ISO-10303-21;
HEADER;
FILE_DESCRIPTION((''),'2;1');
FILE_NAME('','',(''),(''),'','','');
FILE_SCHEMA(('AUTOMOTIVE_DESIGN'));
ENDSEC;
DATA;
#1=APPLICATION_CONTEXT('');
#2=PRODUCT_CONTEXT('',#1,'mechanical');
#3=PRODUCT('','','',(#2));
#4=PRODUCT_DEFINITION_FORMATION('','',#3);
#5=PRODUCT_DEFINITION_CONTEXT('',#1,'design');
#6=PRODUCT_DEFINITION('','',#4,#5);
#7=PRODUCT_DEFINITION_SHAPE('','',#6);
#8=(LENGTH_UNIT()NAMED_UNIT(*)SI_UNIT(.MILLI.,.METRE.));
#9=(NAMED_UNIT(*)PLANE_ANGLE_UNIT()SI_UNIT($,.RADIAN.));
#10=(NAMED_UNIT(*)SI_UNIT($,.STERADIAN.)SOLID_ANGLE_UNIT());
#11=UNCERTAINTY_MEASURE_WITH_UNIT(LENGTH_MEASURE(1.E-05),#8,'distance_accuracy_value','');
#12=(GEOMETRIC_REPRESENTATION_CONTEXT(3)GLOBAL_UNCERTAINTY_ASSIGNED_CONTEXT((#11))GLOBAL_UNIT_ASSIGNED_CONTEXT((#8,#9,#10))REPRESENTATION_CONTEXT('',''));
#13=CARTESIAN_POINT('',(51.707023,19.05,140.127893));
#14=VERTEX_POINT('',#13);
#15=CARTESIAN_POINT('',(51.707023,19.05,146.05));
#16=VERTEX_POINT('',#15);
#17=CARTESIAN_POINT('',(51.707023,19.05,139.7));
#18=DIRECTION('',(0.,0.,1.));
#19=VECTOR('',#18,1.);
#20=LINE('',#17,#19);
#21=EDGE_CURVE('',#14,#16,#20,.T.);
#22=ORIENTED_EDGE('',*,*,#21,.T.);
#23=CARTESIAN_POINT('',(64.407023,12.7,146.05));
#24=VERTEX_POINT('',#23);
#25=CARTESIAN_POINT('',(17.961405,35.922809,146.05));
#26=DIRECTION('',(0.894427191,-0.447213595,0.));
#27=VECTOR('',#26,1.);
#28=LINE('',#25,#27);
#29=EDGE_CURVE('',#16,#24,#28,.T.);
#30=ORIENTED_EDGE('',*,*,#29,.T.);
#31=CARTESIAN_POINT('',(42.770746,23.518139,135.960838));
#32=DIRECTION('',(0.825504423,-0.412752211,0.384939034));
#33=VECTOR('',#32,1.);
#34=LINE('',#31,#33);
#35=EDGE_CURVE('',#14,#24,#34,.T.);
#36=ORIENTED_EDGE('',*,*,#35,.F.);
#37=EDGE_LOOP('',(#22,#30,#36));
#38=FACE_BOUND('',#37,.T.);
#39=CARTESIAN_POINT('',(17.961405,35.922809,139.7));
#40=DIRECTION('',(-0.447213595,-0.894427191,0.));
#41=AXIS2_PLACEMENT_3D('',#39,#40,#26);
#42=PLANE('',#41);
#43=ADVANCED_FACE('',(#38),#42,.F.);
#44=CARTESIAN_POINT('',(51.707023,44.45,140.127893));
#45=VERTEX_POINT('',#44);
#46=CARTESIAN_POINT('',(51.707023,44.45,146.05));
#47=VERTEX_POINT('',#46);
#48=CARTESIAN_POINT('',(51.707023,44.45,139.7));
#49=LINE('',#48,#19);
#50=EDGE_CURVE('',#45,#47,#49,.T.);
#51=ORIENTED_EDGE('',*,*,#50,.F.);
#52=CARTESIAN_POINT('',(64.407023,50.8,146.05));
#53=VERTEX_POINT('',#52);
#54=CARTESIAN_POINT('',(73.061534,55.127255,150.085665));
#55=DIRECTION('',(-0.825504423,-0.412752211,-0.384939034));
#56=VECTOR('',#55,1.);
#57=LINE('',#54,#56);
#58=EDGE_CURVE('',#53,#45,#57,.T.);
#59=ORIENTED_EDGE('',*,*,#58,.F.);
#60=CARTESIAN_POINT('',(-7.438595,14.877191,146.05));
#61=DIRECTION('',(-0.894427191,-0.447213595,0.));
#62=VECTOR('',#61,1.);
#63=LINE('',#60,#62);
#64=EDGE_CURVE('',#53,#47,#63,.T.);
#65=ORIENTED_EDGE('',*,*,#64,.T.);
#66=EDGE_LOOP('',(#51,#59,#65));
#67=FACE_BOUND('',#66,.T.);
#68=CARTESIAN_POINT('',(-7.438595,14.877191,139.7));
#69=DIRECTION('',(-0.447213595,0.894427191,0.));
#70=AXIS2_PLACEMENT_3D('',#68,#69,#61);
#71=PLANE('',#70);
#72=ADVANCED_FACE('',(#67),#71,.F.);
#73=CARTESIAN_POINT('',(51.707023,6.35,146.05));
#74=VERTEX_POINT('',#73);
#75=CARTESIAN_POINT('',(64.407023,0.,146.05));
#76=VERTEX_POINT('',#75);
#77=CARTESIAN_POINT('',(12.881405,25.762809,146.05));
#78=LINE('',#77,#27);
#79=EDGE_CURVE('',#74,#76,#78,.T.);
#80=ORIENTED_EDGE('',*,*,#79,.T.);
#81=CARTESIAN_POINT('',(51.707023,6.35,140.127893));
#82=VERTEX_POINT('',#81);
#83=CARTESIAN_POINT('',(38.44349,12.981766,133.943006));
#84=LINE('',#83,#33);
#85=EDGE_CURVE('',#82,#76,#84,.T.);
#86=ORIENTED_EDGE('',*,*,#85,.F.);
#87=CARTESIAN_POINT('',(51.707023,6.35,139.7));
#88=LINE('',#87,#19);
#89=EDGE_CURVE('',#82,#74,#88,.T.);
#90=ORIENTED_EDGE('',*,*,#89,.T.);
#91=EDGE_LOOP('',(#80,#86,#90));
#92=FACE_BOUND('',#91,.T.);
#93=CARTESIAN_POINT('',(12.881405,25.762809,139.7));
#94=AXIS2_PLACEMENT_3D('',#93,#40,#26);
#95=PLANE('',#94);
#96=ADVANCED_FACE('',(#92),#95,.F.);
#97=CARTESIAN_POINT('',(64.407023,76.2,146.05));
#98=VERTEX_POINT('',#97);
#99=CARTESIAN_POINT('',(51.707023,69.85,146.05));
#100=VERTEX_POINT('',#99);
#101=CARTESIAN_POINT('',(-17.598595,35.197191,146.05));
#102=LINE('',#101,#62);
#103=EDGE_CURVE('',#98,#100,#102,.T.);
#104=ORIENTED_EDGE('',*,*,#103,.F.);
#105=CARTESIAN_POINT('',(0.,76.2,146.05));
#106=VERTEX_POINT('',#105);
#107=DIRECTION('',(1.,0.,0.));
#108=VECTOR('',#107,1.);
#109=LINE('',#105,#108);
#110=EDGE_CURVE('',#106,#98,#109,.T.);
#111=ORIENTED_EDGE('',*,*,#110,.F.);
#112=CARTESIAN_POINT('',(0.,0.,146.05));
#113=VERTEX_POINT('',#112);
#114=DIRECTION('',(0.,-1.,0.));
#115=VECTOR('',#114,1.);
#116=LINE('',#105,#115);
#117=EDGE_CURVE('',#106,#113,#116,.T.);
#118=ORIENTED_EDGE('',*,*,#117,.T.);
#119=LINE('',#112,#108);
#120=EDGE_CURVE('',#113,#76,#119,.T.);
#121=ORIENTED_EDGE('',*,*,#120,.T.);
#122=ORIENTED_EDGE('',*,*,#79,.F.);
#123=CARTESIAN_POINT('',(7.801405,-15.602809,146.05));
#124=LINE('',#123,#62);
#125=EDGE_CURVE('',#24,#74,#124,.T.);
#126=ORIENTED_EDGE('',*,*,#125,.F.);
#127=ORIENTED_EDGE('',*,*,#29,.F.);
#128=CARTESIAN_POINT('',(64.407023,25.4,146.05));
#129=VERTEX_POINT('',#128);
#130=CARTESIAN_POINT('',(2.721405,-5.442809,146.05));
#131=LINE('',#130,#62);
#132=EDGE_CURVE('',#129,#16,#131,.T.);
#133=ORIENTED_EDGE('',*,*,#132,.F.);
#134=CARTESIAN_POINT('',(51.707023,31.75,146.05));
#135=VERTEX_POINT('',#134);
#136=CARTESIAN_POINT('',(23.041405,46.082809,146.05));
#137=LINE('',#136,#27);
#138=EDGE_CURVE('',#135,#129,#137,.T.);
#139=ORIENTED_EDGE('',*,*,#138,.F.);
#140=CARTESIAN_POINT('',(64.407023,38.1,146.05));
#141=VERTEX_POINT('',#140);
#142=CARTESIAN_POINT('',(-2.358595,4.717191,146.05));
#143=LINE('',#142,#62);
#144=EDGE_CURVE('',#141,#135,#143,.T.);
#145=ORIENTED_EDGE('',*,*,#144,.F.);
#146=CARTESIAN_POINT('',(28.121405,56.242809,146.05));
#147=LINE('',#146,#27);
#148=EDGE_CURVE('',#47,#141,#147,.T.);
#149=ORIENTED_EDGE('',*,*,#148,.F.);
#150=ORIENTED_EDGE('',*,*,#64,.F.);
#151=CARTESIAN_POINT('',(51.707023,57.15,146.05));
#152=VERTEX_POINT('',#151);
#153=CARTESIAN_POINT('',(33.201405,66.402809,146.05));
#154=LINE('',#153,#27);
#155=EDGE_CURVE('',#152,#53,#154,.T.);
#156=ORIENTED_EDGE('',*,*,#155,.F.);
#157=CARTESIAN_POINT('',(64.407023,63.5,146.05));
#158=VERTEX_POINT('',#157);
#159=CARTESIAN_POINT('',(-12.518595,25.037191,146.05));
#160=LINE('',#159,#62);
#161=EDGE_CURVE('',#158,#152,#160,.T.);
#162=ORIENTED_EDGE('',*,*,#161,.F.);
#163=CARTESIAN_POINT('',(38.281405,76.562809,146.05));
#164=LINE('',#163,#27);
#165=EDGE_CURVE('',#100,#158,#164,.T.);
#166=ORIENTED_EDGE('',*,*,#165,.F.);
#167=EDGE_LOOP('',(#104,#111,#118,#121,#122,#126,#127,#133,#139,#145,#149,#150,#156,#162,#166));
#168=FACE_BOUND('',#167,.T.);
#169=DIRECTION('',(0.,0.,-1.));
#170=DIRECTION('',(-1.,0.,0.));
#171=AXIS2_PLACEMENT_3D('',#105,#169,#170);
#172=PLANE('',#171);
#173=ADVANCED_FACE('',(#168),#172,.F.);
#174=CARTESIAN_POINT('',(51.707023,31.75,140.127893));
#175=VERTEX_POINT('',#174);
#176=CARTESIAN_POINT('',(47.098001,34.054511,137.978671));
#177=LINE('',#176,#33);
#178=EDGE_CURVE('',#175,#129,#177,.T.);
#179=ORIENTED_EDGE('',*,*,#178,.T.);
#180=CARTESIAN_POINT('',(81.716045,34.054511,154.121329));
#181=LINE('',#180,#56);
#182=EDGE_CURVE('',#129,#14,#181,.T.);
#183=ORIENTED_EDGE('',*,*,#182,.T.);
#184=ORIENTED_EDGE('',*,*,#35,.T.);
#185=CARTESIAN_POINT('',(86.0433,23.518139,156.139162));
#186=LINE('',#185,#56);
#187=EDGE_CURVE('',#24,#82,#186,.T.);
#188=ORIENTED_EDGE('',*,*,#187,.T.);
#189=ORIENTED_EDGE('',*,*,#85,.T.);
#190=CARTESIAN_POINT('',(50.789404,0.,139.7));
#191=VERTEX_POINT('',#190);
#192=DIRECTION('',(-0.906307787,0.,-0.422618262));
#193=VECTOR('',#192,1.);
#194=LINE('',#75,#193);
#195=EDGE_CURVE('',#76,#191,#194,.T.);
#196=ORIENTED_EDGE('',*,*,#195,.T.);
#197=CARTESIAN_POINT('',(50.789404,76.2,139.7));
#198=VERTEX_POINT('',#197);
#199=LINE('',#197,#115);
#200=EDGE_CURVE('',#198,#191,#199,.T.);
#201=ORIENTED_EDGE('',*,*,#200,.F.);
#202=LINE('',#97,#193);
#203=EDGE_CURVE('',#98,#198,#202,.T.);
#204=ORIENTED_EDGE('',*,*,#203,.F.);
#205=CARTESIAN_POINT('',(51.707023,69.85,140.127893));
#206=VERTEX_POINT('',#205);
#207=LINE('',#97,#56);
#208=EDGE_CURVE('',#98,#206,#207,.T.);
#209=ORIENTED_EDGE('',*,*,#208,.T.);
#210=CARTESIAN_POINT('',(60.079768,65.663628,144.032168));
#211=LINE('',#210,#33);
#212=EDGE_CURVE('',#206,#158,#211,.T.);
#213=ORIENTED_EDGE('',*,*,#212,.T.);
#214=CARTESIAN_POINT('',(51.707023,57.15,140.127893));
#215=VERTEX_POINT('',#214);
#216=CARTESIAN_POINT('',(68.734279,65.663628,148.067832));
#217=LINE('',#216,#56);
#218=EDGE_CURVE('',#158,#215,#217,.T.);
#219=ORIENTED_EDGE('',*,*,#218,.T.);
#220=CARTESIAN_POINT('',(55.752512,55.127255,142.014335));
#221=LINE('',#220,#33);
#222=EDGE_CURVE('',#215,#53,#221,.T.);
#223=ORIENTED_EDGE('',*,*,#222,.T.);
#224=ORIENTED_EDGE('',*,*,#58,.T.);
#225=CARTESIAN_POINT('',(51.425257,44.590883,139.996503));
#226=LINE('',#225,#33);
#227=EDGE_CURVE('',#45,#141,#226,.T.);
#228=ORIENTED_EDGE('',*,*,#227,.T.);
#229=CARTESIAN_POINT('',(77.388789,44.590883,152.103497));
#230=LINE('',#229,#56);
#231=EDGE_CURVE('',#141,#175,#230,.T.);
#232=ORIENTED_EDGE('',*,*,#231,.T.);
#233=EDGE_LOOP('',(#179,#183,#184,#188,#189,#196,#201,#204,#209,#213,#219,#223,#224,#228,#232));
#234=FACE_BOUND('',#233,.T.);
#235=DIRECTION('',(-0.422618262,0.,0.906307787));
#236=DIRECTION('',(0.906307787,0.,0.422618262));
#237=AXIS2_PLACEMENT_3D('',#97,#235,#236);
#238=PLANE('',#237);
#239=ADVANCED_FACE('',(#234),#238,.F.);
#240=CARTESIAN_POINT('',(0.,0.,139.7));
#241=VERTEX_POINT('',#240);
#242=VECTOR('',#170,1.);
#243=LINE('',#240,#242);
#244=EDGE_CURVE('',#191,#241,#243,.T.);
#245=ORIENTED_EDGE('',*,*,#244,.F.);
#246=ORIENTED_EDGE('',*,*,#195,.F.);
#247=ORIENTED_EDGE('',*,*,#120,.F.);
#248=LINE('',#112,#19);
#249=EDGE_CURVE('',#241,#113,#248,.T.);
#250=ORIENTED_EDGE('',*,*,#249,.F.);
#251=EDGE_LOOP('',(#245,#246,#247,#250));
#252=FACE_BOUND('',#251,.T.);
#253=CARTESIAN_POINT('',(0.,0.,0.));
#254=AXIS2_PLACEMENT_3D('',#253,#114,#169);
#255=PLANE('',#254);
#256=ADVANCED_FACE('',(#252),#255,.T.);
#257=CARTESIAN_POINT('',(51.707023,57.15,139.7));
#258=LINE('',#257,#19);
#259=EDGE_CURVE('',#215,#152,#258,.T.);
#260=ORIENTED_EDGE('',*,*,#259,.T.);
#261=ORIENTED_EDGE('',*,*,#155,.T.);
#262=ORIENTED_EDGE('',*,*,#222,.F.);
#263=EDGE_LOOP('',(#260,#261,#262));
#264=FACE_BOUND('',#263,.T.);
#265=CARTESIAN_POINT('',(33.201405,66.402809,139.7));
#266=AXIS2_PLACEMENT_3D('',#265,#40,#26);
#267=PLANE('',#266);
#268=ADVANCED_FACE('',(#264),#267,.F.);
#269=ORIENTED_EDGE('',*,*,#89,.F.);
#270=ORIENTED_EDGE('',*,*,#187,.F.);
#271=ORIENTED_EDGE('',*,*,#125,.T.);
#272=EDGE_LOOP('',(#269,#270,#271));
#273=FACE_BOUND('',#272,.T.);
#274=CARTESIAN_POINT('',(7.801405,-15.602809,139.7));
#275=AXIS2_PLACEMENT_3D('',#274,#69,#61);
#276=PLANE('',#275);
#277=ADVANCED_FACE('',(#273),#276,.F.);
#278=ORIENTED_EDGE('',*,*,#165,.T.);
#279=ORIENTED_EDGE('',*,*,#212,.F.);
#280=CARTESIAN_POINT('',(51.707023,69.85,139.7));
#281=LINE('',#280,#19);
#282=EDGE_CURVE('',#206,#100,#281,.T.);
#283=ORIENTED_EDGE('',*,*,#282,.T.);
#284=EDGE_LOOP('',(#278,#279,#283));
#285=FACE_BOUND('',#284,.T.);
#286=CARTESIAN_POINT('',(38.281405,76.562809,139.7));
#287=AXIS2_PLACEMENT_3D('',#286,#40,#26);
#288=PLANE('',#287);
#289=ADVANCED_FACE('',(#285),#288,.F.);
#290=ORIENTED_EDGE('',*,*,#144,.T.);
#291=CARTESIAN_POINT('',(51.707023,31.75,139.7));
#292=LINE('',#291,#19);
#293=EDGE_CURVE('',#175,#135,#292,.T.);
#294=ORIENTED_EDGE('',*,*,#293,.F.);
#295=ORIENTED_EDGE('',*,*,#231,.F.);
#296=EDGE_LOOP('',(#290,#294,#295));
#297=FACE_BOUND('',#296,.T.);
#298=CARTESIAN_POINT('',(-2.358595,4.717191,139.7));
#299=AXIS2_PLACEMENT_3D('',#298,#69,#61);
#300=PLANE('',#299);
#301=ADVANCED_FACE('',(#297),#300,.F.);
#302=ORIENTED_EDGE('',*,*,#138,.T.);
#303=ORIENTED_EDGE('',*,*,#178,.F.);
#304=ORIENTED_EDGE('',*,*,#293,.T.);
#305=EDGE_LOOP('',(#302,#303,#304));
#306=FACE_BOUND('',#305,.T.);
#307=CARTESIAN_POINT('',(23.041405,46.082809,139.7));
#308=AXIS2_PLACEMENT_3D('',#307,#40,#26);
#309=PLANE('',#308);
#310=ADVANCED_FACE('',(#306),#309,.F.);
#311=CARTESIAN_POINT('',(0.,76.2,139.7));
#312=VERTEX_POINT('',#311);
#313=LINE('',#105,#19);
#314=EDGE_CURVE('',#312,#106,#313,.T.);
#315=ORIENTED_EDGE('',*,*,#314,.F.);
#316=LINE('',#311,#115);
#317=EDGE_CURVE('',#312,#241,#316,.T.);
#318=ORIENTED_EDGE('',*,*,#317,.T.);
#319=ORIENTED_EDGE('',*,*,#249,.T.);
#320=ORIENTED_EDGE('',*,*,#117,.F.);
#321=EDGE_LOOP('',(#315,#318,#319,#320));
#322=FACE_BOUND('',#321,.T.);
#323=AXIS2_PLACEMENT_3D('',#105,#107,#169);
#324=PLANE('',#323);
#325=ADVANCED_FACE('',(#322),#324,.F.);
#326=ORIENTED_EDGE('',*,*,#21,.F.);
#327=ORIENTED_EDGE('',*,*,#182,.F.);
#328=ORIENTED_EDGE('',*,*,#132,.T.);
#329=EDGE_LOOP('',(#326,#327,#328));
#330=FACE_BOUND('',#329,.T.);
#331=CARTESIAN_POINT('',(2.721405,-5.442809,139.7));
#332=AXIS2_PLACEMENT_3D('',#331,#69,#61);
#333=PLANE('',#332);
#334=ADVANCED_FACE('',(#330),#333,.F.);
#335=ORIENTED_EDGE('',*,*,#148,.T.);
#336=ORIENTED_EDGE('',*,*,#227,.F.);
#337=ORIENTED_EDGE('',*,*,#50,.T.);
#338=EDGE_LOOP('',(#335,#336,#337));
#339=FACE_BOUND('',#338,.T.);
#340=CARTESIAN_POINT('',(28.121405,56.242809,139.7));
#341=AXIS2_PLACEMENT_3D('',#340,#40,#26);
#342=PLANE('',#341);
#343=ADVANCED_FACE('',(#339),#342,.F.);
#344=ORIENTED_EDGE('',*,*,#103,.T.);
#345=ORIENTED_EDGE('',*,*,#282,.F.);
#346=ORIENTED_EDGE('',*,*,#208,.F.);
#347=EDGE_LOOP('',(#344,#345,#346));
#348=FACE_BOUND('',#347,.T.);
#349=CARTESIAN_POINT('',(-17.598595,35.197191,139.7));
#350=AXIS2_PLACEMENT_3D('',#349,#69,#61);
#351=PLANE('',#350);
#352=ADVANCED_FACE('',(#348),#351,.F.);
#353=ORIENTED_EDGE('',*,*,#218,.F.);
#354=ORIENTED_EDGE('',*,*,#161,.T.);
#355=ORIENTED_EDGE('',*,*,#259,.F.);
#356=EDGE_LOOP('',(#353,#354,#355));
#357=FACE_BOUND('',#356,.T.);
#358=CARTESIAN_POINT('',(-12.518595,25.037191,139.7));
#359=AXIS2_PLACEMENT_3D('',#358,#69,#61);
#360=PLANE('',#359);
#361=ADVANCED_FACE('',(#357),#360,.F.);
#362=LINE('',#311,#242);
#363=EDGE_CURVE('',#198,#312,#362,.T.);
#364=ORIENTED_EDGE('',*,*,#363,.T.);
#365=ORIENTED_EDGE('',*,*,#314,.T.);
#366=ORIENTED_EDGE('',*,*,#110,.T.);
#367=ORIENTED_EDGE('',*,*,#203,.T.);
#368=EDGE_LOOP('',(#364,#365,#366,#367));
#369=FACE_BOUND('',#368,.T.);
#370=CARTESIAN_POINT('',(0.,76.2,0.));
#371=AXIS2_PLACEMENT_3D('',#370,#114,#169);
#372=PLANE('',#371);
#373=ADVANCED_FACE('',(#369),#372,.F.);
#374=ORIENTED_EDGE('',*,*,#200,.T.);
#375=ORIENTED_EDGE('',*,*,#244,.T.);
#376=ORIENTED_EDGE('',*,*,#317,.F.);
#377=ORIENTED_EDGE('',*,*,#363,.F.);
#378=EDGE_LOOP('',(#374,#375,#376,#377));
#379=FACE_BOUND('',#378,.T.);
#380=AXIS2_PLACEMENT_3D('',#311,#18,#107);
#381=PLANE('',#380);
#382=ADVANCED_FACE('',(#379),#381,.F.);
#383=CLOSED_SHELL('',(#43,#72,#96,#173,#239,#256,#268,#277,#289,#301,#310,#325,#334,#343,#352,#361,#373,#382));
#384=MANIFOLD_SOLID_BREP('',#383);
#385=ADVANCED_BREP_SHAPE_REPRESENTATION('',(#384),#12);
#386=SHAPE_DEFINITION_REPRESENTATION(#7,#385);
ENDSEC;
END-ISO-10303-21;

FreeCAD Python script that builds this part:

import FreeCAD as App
import Part
import Sketcher

V = App.Vector
Q = App.Units.Quantity


def add_polygon(sketch, points):
    """Adds a closed chain of lines whose ends are joined by coincident constraints."""
    first, n = sketch.GeometryCount, len(points)
    for a, b in zip(points, points[1:] + points[:1]):
        sketch.addGeometry(Part.LineSegment(App.Vector(*a, 0), App.Vector(*b, 0)), False)
    for i in range(n):
        sketch.addConstraint(Sketcher.Constraint("Coincident", first + i, 2, first + (i + 1) % n, 1))

doc = App.newDocument("Part")
body = doc.addObject("PartDesign::Body", "Body")

sketch1 = doc.addObject("Sketcher::SketchObject", "Sketch")
body.addObject(sketch1)
sketch1.AttachmentSupport = (doc.XZ_Plane, [""])
sketch1.MapMode = "FlatFace"
add_polygon(sketch1, [(0, 146), (64, 146), (51, 140), (0, 140)])
sketch1.addConstraint([
    Sketcher.Constraint("Horizontal", 0),
    Sketcher.Constraint("Horizontal", 2),
    Sketcher.Constraint("Vertical", 3),
    Sketcher.Constraint("PointOnObject", 2, 2, -2),
    Sketcher.Constraint("Angle", 1, Q("-155 deg")),
    Sketcher.Constraint("DistanceY", 3, 1, 3, 2, Q("0.25 in")),
    Sketcher.Constraint("DistanceY", -1, 1, 1, 2, Q("5.5 in")),
    Sketcher.Constraint("DistanceX", 0, 1, 0, 2, Q("64.407023 mm")),
])
pad1 = doc.addObject("PartDesign::Pad", "Pad")
body.addObject(pad1)
pad1.Profile = sketch1
pad1.Length = Q("3 in")
pad1.Reversed = True

sketch2 = doc.addObject("Sketcher::SketchObject", "Sketch001")
body.addObject(sketch2)
sketch2.AttachmentSupport = (doc.XY_Plane, [""])
sketch2.MapMode = "FlatFace"
sketch2.AttachmentOffset = App.Placement(V(0, 0, 5.75 * 25.4), App.Rotation())
add_polygon(sketch2, [(64, 0), (64, 13), (52, 6)])
add_polygon(sketch2, [(64, 13), (64, 25), (52, 19)])
add_polygon(sketch2, [(64, 25), (64, 38), (52, 32)])
add_polygon(sketch2, [(64, 38), (64, 51), (52, 44)])
add_polygon(sketch2, [(64, 51), (64, 64), (52, 57)])
add_polygon(sketch2, [(64, 64), (64, 76), (52, 70)])
sketch2.addConstraint([
    Sketcher.Constraint("Vertical", 0),
    Sketcher.Constraint("Vertical", 3),
    Sketcher.Constraint("Vertical", 6),
    Sketcher.Constraint("Vertical", 9),
    Sketcher.Constraint("Vertical", 12),
    Sketcher.Constraint("Vertical", 15),
    Sketcher.Constraint("Coincident", 5, 2, 0, 2),
    Sketcher.Constraint("Coincident", 8, 2, 3, 2),
    Sketcher.Constraint("Coincident", 11, 2, 6, 2),
    Sketcher.Constraint("Coincident", 14, 2, 9, 2),
    Sketcher.Constraint("Coincident", 17, 2, 12, 2),
    Sketcher.Constraint("PointOnObject", 2, 2, -1),
    Sketcher.Constraint("Parallel", 1, 4),
    Sketcher.Constraint("Parallel", 2, 5),
    Sketcher.Constraint("Parallel", 4, 7),
    Sketcher.Constraint("Parallel", 5, 8),
    Sketcher.Constraint("Parallel", 7, 10),
    Sketcher.Constraint("Parallel", 8, 11),
    Sketcher.Constraint("Parallel", 10, 13),
    Sketcher.Constraint("Parallel", 11, 14),
    Sketcher.Constraint("Parallel", 13, 16),
    Sketcher.Constraint("Parallel", 14, 17),
    Sketcher.Constraint("Vertical", 1, 2, 4, 2),
    Sketcher.Constraint("Vertical", 4, 2, 7, 2),
    Sketcher.Constraint("Vertical", 7, 2, 10, 2),
    Sketcher.Constraint("Vertical", 10, 2, 13, 2),
    Sketcher.Constraint("Vertical", 13, 2, 16, 2),
    Sketcher.Constraint("Equal", 1, 2),
    Sketcher.Constraint("DistanceY", 0, 1, 0, 2, Q("0.5 in")),
    Sketcher.Constraint("DistanceX", 1, 2, 0, 2, Q("0.5 in")),
    Sketcher.Constraint("DistanceX", -1, 1, 0, 2, Q("64.407023 mm")),
])
pocket1 = doc.addObject("PartDesign::Pocket", "Pocket")
body.addObject(pocket1)
pocket1.Profile = sketch2
pocket1.Type = "ThroughAll"

doc.recompute()
